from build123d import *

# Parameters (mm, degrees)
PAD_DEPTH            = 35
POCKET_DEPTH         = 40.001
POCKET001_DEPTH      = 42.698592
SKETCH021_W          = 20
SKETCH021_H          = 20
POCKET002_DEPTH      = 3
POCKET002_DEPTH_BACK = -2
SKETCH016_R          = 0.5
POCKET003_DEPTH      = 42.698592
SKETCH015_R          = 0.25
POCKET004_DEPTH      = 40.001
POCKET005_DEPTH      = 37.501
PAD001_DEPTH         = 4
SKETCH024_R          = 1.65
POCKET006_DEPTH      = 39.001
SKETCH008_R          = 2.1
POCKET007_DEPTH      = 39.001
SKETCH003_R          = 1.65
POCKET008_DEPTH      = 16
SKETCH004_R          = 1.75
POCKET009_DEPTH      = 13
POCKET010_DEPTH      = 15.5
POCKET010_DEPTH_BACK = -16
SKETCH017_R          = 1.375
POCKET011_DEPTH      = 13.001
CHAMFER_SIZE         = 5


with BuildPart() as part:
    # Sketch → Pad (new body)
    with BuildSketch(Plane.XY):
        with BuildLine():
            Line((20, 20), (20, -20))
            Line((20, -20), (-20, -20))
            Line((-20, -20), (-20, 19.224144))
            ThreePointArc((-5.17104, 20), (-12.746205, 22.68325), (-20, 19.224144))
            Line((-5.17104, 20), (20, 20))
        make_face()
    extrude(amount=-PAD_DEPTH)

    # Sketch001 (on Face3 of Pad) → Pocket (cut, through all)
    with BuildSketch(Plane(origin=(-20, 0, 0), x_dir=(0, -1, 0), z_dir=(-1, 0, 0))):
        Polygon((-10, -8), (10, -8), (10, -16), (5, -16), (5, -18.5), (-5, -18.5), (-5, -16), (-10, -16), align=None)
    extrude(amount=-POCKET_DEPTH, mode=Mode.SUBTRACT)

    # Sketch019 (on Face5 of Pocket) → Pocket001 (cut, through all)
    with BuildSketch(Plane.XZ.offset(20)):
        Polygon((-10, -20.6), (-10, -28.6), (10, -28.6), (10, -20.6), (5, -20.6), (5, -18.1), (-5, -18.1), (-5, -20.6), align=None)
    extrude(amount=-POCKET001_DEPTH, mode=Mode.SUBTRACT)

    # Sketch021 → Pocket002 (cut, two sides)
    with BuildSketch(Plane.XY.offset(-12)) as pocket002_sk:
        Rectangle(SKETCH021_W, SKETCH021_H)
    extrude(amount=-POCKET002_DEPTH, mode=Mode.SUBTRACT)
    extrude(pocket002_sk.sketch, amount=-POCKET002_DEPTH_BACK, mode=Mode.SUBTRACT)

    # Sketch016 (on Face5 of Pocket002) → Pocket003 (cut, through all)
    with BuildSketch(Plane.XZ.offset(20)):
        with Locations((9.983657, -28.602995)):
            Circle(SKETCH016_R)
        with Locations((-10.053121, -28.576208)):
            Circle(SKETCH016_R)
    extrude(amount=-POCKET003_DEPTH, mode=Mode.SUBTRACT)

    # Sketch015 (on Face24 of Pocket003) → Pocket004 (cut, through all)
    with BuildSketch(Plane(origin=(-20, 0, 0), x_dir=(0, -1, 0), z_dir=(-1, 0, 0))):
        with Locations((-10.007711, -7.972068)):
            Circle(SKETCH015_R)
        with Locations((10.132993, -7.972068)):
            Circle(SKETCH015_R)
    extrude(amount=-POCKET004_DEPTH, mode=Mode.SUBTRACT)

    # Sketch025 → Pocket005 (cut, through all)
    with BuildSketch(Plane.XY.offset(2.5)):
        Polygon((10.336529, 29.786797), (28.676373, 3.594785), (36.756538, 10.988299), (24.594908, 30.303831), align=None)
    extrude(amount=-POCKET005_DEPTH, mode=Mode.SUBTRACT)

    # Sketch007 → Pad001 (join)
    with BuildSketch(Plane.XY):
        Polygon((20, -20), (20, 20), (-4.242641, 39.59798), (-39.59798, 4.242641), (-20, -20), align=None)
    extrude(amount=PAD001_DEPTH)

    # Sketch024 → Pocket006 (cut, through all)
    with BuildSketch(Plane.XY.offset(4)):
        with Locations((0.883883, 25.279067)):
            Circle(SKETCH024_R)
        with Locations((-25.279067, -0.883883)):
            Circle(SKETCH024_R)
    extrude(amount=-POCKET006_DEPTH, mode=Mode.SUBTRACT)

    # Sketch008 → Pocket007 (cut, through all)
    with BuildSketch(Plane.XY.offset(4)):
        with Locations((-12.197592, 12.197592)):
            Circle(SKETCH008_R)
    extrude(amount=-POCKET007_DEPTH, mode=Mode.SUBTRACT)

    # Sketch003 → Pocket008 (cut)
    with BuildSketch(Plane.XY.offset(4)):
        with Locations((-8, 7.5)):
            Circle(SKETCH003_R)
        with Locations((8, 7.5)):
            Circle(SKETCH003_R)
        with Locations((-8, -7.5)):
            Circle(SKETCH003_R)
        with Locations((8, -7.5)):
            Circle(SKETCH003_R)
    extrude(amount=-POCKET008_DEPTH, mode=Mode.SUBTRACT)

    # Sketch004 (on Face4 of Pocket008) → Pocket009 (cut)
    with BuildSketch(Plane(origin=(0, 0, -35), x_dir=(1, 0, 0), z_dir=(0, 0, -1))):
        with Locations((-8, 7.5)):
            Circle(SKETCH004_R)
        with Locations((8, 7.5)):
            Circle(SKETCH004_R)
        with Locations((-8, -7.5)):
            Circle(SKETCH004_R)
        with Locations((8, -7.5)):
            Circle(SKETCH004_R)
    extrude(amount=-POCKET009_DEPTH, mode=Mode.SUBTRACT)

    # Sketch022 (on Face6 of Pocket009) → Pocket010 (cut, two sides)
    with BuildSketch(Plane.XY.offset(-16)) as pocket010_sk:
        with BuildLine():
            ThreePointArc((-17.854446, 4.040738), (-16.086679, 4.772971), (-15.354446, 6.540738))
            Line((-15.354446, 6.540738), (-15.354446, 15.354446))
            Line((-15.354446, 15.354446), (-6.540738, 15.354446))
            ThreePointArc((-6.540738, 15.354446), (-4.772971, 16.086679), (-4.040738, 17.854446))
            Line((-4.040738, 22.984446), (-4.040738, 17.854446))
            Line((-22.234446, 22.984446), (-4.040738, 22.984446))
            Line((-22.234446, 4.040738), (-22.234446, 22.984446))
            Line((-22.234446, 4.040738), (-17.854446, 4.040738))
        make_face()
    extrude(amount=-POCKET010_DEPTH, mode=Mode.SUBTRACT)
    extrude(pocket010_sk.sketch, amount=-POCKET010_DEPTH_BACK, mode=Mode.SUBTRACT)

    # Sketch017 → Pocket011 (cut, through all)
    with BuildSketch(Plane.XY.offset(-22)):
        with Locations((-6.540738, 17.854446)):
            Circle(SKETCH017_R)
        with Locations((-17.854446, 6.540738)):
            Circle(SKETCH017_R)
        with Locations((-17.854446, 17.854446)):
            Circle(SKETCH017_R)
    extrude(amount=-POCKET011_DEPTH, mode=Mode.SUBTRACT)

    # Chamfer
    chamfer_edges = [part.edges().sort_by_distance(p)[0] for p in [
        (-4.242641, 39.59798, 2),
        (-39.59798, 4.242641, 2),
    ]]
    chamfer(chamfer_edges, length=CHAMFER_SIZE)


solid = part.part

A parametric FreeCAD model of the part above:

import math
import FreeCAD as App
import Part
import Sketcher
Q = App.Units.Quantity


def edges_at(feature, points):
    """Names of the edges that pass closest to the given points."""
    edges = feature.Shape.Edges
    near = lambda p: min(range(len(edges)), key=lambda i: edges[i].distToShape(Part.Vertex(*p))[0])
    return sorted({f"Edge{near(p) + 1}" for p in points})

doc = App.newDocument("Part")
body = doc.addObject("PartDesign::Body", "Body")

# Sketch on XY plane
sketch1 = doc.addObject("Sketcher::SketchObject", "Sketch")
body.addObject(sketch1)
sketch1.AttachmentSupport = (doc.XY_Plane, [""])
sketch1.MapMode = "FlatFace"
sketch1.addGeometry([
    Part.LineSegment(App.Vector(20, -20, 0), App.Vector(20, 20, 0)),  # 0
    Part.LineSegment(App.Vector(20, 20, 0), App.Vector(-5, 20, 0)),  # 1
    Part.ArcOfCircle(Part.Circle(App.Vector(-12, 12, 0), App.Vector(0, 0, 1), 11), math.radians(48), math.radians(138)),  # 2
    Part.LineSegment(App.Vector(-20, 19, 0), App.Vector(-20, -20, 0)),  # 3
    Part.LineSegment(App.Vector(-20, -20, 0), App.Vector(20, -20, 0)),  # 4
], False)
sketch1.addConstraint([
    Sketcher.Constraint("Coincident", 0, 2, 1, 1),
    Sketcher.Constraint("Coincident", 1, 2, 2, 1),
    Sketcher.Constraint("Coincident", 2, 2, 3, 1),
    Sketcher.Constraint("Coincident", 3, 2, 4, 1),
    Sketcher.Constraint("Coincident", 4, 2, 0, 1),
    Sketcher.Constraint("Vertical", 0),
    Sketcher.Constraint("Horizontal", 1),
    Sketcher.Constraint("Vertical", 3),
    Sketcher.Constraint("Horizontal", 4),
    Sketcher.Constraint("Symmetric", 0, 2, 3, 2, -1, 1),
    Sketcher.Constraint("Equal", 4, 0),
    Sketcher.Constraint("Radius", 2, Q("10.500001 mm")),
    Sketcher.Constraint("DistanceX", 4, 1, 4, 2, Q("40 mm")),
    Sketcher.Constraint("DistanceX", 1, 2, 1, 1, Q("25.17104 mm")),
    Sketcher.Constraint("DistanceY", 3, 2, 3, 1, Q("39.224144 mm")),
])
pad1 = doc.addObject("PartDesign::Pad", "Pad")
body.addObject(pad1)
pad1.Profile = sketch1
pad1.Length = 35
pad1.Reversed = True

# Sketch on YZ plane
sketch2 = doc.addObject("Sketcher::SketchObject", "Sketch001")
body.addObject(sketch2)
sketch2.AttachmentSupport = (doc.YZ_Plane, [""])
sketch2.MapMode = "FlatFace"
sketch2.AttachmentOffset = App.Placement(App.Vector(0, 0, -20), App.Rotation())
sketch2.addGeometry([
    Part.LineSegment(App.Vector(-10, -8, 0), App.Vector(10, -8, 0)),  # 0
    Part.LineSegment(App.Vector(10, -8, 0), App.Vector(10, -16, 0)),  # 1
    Part.LineSegment(App.Vector(10, -16, 0), App.Vector(5, -16, 0)),  # 2
    Part.LineSegment(App.Vector(5, -16, 0), App.Vector(5, -18.5, 0)),  # 3
    Part.LineSegment(App.Vector(5, -18.5, 0), App.Vector(-5, -18.5, 0)),  # 4
    Part.LineSegment(App.Vector(-5, -18.5, 0), App.Vector(-5, -16, 0)),  # 5
    Part.LineSegment(App.Vector(-5, -16, 0), App.Vector(-10, -16, 0)),  # 6
    Part.LineSegment(App.Vector(-10, -16, 0), App.Vector(-10, -8, 0)),  # 7
], False)
sketch2.addConstraint([
    Sketcher.Constraint("Coincident", 0, 2, 1, 1),
    Sketcher.Constraint("Coincident", 1, 2, 2, 1),
    Sketcher.Constraint("Coincident", 2, 2, 3, 1),
    Sketcher.Constraint("Coincident", 3, 2, 4, 1),
    Sketcher.Constraint("Coincident", 4, 2, 5, 1),
    Sketcher.Constraint("Coincident", 5, 2, 6, 1),
    Sketcher.Constraint("Coincident", 6, 2, 7, 1),
    Sketcher.Constraint("Coincident", 7, 2, 0, 1),
    Sketcher.Constraint("Horizontal", 0),
    Sketcher.Constraint("Vertical", 1),
    Sketcher.Constraint("Horizontal", 2),
    Sketcher.Constraint("Vertical", 3),
    Sketcher.Constraint("Horizontal", 4),
    Sketcher.Constraint("Vertical", 5),
    Sketcher.Constraint("Horizontal", 6),
    Sketcher.Constraint("Vertical", 7),
    Sketcher.Constraint("Symmetric", 2, 2, 5, 2, -2),
    Sketcher.Constraint("Equal", 2, 6),
    Sketcher.Constraint("DistanceX", 0, 1, 0, 2, Q("20 mm")),
    Sketcher.Constraint("DistanceX", 2, 2, 2, 1, Q("5 mm")),
    Sketcher.Constraint("DistanceY", 1, 2, 1, 1, Q("8 mm")),
    Sketcher.Constraint("DistanceY", 3, 2, 3, 1, Q("2.5 mm")),
    Sketcher.Constraint("DistanceY", 0, 2, -1, 1, Q("8 mm")),
])
pocket1 = doc.addObject("PartDesign::Pocket", "Pocket")
body.addObject(pocket1)
pocket1.Profile = sketch2
pocket1.Type = "ThroughAll"
pocket1.Reversed = True

# Sketch on XZ plane
sketch3 = doc.addObject("Sketcher::SketchObject", "Sketch002")
body.addObject(sketch3)
sketch3.AttachmentSupport = (doc.XZ_Plane, [""])
sketch3.MapMode = "FlatFace"
sketch3.AttachmentOffset = App.Placement(App.Vector(0, 0, 20), App.Rotation())
sketch3.addGeometry([
    Part.LineSegment(App.Vector(-10, -20.6, 0), App.Vector(-10, -28.6, 0)),  # 0
    Part.LineSegment(App.Vector(-10, -28.6, 0), App.Vector(10, -28.6, 0)),  # 1
    Part.LineSegment(App.Vector(10, -28.6, 0), App.Vector(10, -20.6, 0)),  # 2
    Part.LineSegment(App.Vector(10, -20.6, 0), App.Vector(5, -20.6, 0)),  # 3
    Part.LineSegment(App.Vector(5, -20.6, 0), App.Vector(5, -18.1, 0)),  # 4
    Part.LineSegment(App.Vector(5, -18.1, 0), App.Vector(-5, -18.1, 0)),  # 5
    Part.LineSegment(App.Vector(-5, -18.1, 0), App.Vector(-5, -20.6, 0)),  # 6
    Part.LineSegment(App.Vector(-5, -20.6, 0), App.Vector(-10, -20.6, 0)),  # 7
], False)
sketch3.addConstraint([
    Sketcher.Constraint("Coincident", 0, 2, 1, 1),
    Sketcher.Constraint("Coincident", 1, 2, 2, 1),
    Sketcher.Constraint("Coincident", 2, 2, 3, 1),
    Sketcher.Constraint("Coincident", 3, 2, 4, 1),
    Sketcher.Constraint("Coincident", 4, 2, 5, 1),
    Sketcher.Constraint("Coincident", 5, 2, 6, 1),
    Sketcher.Constraint("Coincident", 6, 2, 7, 1),
    Sketcher.Constraint("Coincident", 7, 2, 0, 1),
    Sketcher.Constraint("Vertical", 0),
    Sketcher.Constraint("Horizontal", 1),
    Sketcher.Constraint("Vertical", 2),
    Sketcher.Constraint("Horizontal", 3),
    Sketcher.Constraint("Vertical", 4),
    Sketcher.Constraint("Horizontal", 5),
    Sketcher.Constraint("Vertical", 6),
    Sketcher.Constraint("Horizontal", 7),
    Sketcher.Constraint("Symmetric", 3, 2, 6, 2, -2),
    Sketcher.Constraint("Equal", 3, 7),
    Sketcher.Constraint("DistanceX", 1, 1, 1, 2, Q("20 mm")),
    Sketcher.Constraint("DistanceX", 3, 2, 3, 1, Q("5 mm")),
    Sketcher.Constraint("DistanceY", 0, 2, 0, 1, Q("8 mm")),
    Sketcher.Constraint("DistanceY", 4, 1, 4, 2, Q("2.5 mm")),
    Sketcher.Constraint("DistanceY", 0, 2, -1, 1, Q("28.6 mm")),
])
pocket2 = doc.addObject("PartDesign::Pocket", "Pocket001")
body.addObject(pocket2)
pocket2.Profile = sketch3
pocket2.Type = "ThroughAll"

# Sketch on XY plane
sketch4 = doc.addObject("Sketcher::SketchObject", "Sketch003")
body.addObject(sketch4)
sketch4.AttachmentSupport = (doc.XY_Plane, [""])
sketch4.MapMode = "FlatFace"
sketch4.AttachmentOffset = App.Placement(App.Vector(0, 0, -12), App.Rotation())
sketch4.addGeometry([
    Part.LineSegment(App.Vector(-10, 10, 0), App.Vector(-10, -10, 0)),
    Part.LineSegment(App.Vector(-10, -10, 0), App.Vector(10, -10, 0)),
    Part.LineSegment(App.Vector(10, -10, 0), App.Vector(10, 10, 0)),
    Part.LineSegment(App.Vector(10, 10, 0), App.Vector(-10, 10, 0)),
], False)
sketch4.addConstraint([
    Sketcher.Constraint("Coincident", 0, 2, 1, 1),
    Sketcher.Constraint("Coincident", 1, 2, 2, 1),
    Sketcher.Constraint("Coincident", 2, 2, 3, 1),
    Sketcher.Constraint("Coincident", 3, 2, 0, 1),
    Sketcher.Constraint("Vertical", 0),
    Sketcher.Constraint("Horizontal", 1),
    Sketcher.Constraint("Vertical", 2),
    Sketcher.Constraint("Horizontal", 3),
    Sketcher.Constraint("Symmetric", 0, 2, 2, 2, -1, 1),
    Sketcher.Constraint("Equal", 3, 0),
    Sketcher.Constraint("DistanceX", 1, 1, 1, 2, Q("20 mm")),
])
pocket3 = doc.addObject("PartDesign::Pocket", "Pocket002")
body.addObject(pocket3)
pocket3.Profile = sketch4
pocket3.Type = "TwoLengths"
pocket3.Length = 3
pocket3.Length2 = 2

# Sketch on XZ plane
sketch5 = doc.addObject("Sketcher::SketchObject", "Sketch004")
body.addObject(sketch5)
sketch5.AttachmentSupport = (doc.XZ_Plane, [""])
sketch5.MapMode = "FlatFace"
sketch5.AttachmentOffset = App.Placement(App.Vector(0, 0, 20), App.Rotation())
sketch5.addGeometry([
    Part.Circle(App.Vector(10, -28.6, 0), App.Vector(0, 0, 1), 0.5),
    Part.Circle(App.Vector(-10.1, -28.6, 0), App.Vector(0, 0, 1), 0.5),
], False)
sketch5.addConstraint([
    Sketcher.Constraint("Equal", 0, 1),
    Sketcher.Constraint("Diameter", 0, Q("1 mm")),
    Sketcher.Constraint("DistanceX", 1, 3, -1, 1, Q("10.053121 mm")),
    Sketcher.Constraint("DistanceY", 1, 3, -1, 1, Q("28.576208 mm")),
    Sketcher.Constraint("DistanceX", -1, 1, 0, 3, Q("9.983657 mm")),
    Sketcher.Constraint("DistanceY", 0, 3, -1, 1, Q("28.602995 mm")),
])
pocket4 = doc.addObject("PartDesign::Pocket", "Pocket003")
body.addObject(pocket4)
pocket4.Profile = sketch5
pocket4.Type = "ThroughAll"

# Sketch on YZ plane
sketch6 = doc.addObject("Sketcher::SketchObject", "Sketch005")
body.addObject(sketch6)
sketch6.AttachmentSupport = (doc.YZ_Plane, [""])
sketch6.MapMode = "FlatFace"
sketch6.AttachmentOffset = App.Placement(App.Vector(0, 0, -20), App.Rotation())
sketch6.addGeometry([
    Part.Circle(App.Vector(10.01, -7.97, 0), App.Vector(0, 0, 1), 0.25),
    Part.Circle(App.Vector(-10.13, -7.97, 0), App.Vector(0, 0, 1), 0.25),
], False)
sketch6.addConstraint([
    Sketcher.Constraint("Equal", 0, 1),
    Sketcher.Constraint("Horizontal", 0, 3, 1, 3),
    Sketcher.Constraint("Diameter", 0, Q("0.5 mm")),
    Sketcher.Constraint("DistanceX", -1, 1, 0, 3, Q("10.007711 mm")),
    Sketcher.Constraint("DistanceY", 0, 3, -1, 1, Q("7.972068 mm")),
    Sketcher.Constraint("DistanceX", 1, 3, -1, 1, Q("10.132993 mm")),
])
pocket5 = doc.addObject("PartDesign::Pocket", "Pocket004")
body.addObject(pocket5)
pocket5.Profile = sketch6
pocket5.Type = "ThroughAll"
pocket5.Reversed = True

# Sketch on XY plane
sketch7 = doc.addObject("Sketcher::SketchObject", "Sketch006")
body.addObject(sketch7)
sketch7.AttachmentSupport = (doc.XY_Plane, [""])
sketch7.MapMode = "FlatFace"
sketch7.AttachmentOffset = App.Placement(App.Vector(0, 0, 2.5), App.Rotation())
sketch7.addGeometry([
    Part.LineSegment(App.Vector(10, 30, 0), App.Vector(29, 4, 0)),
    Part.LineSegment(App.Vector(29, 4, 0), App.Vector(37, 11, 0)),
    Part.LineSegment(App.Vector(37, 11, 0), App.Vector(25, 30, 0)),
    Part.LineSegment(App.Vector(25, 30, 0), App.Vector(10, 30, 0)),
], False)
sketch7.addConstraint([
    Sketcher.Constraint("Coincident", 0, 2, 1, 1),
    Sketcher.Constraint("Coincident", 1, 2, 2, 1),
    Sketcher.Constraint("Coincident", 2, 2, 3, 1),
    Sketcher.Constraint("Coincident", 3, 2, 0, 1),
    Sketcher.Constraint("Angle", 0, Q("-55 deg")),
    Sketcher.Constraint("DistanceY", -1, 1, 1, 2, Q("10.988299 mm")),
    Sketcher.Constraint("DistanceY", 1, 2, 3, 2, Q("18.798498 mm")),
    Sketcher.Constraint("Distance", 1, Q("10.952311 mm")),
    Sketcher.Constraint("Distance", 3, Q("14.26775 mm")),
    Sketcher.Constraint("DistanceX", -1, 1, 2, 2, Q("24.594908 mm")),
    Sketcher.Constraint("DistanceY", -1, 1, 2, 2, Q("30.303831 mm")),
    Sketcher.Constraint("DistanceX", 2, 2, 1, 2, Q("12.16163 mm")),
])
pocket6 = doc.addObject("PartDesign::Pocket", "Pocket005")
body.addObject(pocket6)
pocket6.Profile = sketch7
pocket6.Type = "ThroughAll"

# Sketch on XY plane
sketch8 = doc.addObject("Sketcher::SketchObject", "Sketch007")
body.addObject(sketch8)
sketch8.AttachmentSupport = (doc.XY_Plane, [""])
sketch8.MapMode = "FlatFace"
sketch8.addGeometry([
    Part.LineSegment(App.Vector(20, -20, 0), App.Vector(20, 20, 0)),  # 0
    Part.LineSegment(App.Vector(20, 20, 0), App.Vector(-4, 40, 0)),  # 1
    Part.LineSegment(App.Vector(-4, 40, 0), App.Vector(-40, 4, 0)),  # 2
    Part.LineSegment(App.Vector(-40, 4, 0), App.Vector(-20, -20, 0)),  # 3
    Part.LineSegment(App.Vector(-20, -20, 0), App.Vector(20, -20, 0)),  # 4
], False)
sketch8.addConstraint([
    Sketcher.Constraint("Coincident", 0, 2, 1, 1),
    Sketcher.Constraint("Coincident", 1, 2, 2, 1),
    Sketcher.Constraint("Coincident", 2, 2, 3, 1),
    Sketcher.Constraint("Coincident", 3, 2, 4, 1),
    Sketcher.Constraint("Coincident", 4, 2, 0, 1),
    Sketcher.Constraint("Vertical", 0),
    Sketcher.Constraint("Horizontal", 4),
    Sketcher.Constraint("Symmetric", 0, 2, 3, 2, -1, 1),
    Sketcher.Constraint("Equal", 4, 0),
    Sketcher.Constraint("Equal", 1, 3),
    Sketcher.Constraint("DistanceX", 4, 1, 4, 2, Q("40 mm")),
    Sketcher.Constraint("Angle", 2, Q("-135 deg")),
    Sketcher.Constraint("Distance", 2, Q("50 mm")),
    Sketcher.Constraint("Distance", 1, Q("31.17349 mm")),
])
pad2 = doc.addObject("PartDesign::Pad", "Pad001")
body.addObject(pad2)
pad2.Profile = sketch8
pad2.Length = 4

# Sketch on XY plane
sketch9 = doc.addObject("Sketcher::SketchObject", "Sketch008")
body.addObject(sketch9)
sketch9.AttachmentSupport = (doc.XY_Plane, [""])
sketch9.MapMode = "FlatFace"
sketch9.AttachmentOffset = App.Placement(App.Vector(0, 0, 4), App.Rotation())
sketch9.addGeometry([
    Part.Circle(App.Vector(0.9, 25.3, 0), App.Vector(0, 0, 1), 1.6),
    Part.Circle(App.Vector(-25.3, -0.9, 0), App.Vector(0, 0, 1), 1.6),
], False)
sketch9.addConstraint([
    Sketcher.Constraint("Equal", 0, 1),
    Sketcher.Constraint("Diameter", 0, Q("3.3 mm")),
    Sketcher.Constraint("DistanceX", 1, 3, 0, 3, Q("26.16295 mm")),
    Sketcher.Constraint("DistanceY", 1, 3, 0, 3, Q("26.16295 mm")),
    Sketcher.Constraint("DistanceX", -1, 1, 0, 3, Q("0.883883 mm")),
    Sketcher.Constraint("DistanceY", -1, 1, 0, 3, Q("25.279067 mm")),
])
pocket7 = doc.addObject("PartDesign::Pocket", "Pocket006")
body.addObject(pocket7)
pocket7.Profile = sketch9
pocket7.Type = "ThroughAll"

# Sketch on XY plane
sketch10 = doc.addObject("Sketcher::SketchObject", "Sketch009")
body.addObject(sketch10)
sketch10.AttachmentSupport = (doc.XY_Plane, [""])
sketch10.MapMode = "FlatFace"
sketch10.AttachmentOffset = App.Placement(App.Vector(0, 0, 4), App.Rotation())
sketch10.addGeometry(Part.Circle(App.Vector(-12.2, 12.2, 0), App.Vector(0, 0, 1), 2.1), False)
sketch10.addConstraint([
    Sketcher.Constraint("Diameter", 0, Q("4.2 mm")),
    Sketcher.Constraint("DistanceX", 0, 3, -1, 1, Q("12.197592 mm")),
    Sketcher.Constraint("DistanceY", -1, 1, 0, 3, Q("12.197592 mm")),
])
pocket8 = doc.addObject("PartDesign::Pocket", "Pocket007")
body.addObject(pocket8)
pocket8.Profile = sketch10
pocket8.Type = "ThroughAll"

# Sketch on XY plane
sketch11 = doc.addObject("Sketcher::SketchObject", "Sketch010")
body.addObject(sketch11)
sketch11.AttachmentSupport = (doc.XY_Plane, [""])
sketch11.MapMode = "FlatFace"
sketch11.AttachmentOffset = App.Placement(App.Vector(0, 0, 4), App.Rotation())
sketch11.addGeometry([
    Part.Circle(App.Vector(-8, 7.5, 0), App.Vector(0, 0, 1), 1.6),
    Part.Circle(App.Vector(8, 7.5, 0), App.Vector(0, 0, 1), 1.6),
    Part.Circle(App.Vector(-8, -7.5, 0), App.Vector(0, 0, 1), 1.6),
    Part.Circle(App.Vector(8, -7.5, 0), App.Vector(0, 0, 1), 1.6),
], False)
sketch11.addConstraint([
    Sketcher.Constraint("Equal", 0, 1),
    Sketcher.Constraint("Equal", 1, 2),
    Sketcher.Constraint("Equal", 2, 3),
    Sketcher.Constraint("Symmetric", 1, 3, 2, 3, -1, 1),
    Sketcher.Constraint("Symmetric", 0, 3, 3, 3, -1, 1),
    Sketcher.Constraint("Symmetric", 0, 3, 1, 3, -2),
    Sketcher.Constraint("Diameter", 0, Q("3.3 mm")),
    Sketcher.Constraint("DistanceX", 0, 3, -1, 1, Q("8 mm")),
    Sketcher.Constraint("DistanceY", 2, 3, 0, 3, Q("15 mm")),
])
pocket9 = doc.addObject("PartDesign::Pocket", "Pocket008")
body.addObject(pocket9)
pocket9.Profile = sketch11
pocket9.Length = 16

# Sketch on XY plane
sketch12 = doc.addObject("Sketcher::SketchObject", "Sketch011")
body.addObject(sketch12)
sketch12.AttachmentSupport = (doc.XY_Plane, [""])
sketch12.MapMode = "FlatFace"
sketch12.AttachmentOffset = App.Placement(App.Vector(0, 0, -35), App.Rotation())
sketch12.addGeometry([
    Part.Circle(App.Vector(-8, -7.5, 0), App.Vector(0, 0, 1), 1.8),
    Part.Circle(App.Vector(8, -7.5, 0), App.Vector(0, 0, 1), 1.8),
    Part.Circle(App.Vector(-8, 7.5, 0), App.Vector(0, 0, 1), 1.8),
    Part.Circle(App.Vector(8, 7.5, 0), App.Vector(0, 0, 1), 1.8),
], False)
sketch12.addConstraint([
    Sketcher.Constraint("Equal", 0, 1),
    Sketcher.Constraint("Equal", 1, 2),
    Sketcher.Constraint("Equal", 2, 3),
    Sketcher.Constraint("Symmetric", 1, 3, 2, 3, -1, 1),
    Sketcher.Constraint("Symmetric", 0, 3, 3, 3, -1, 1),
    Sketcher.Constraint("Symmetric", 0, 3, 1, 3, -2),
    Sketcher.Constraint("Diameter", 0, Q("3.5 mm")),
    Sketcher.Constraint("DistanceX", 0, 3, -1, 1, Q("8 mm")),
    Sketcher.Constraint("DistanceY", 0, 3, 2, 3, Q("15 mm")),
])
pocket10 = doc.addObject("PartDesign::Pocket", "Pocket009")
body.addObject(pocket10)
pocket10.Profile = sketch12
pocket10.Length = 13
pocket10.Reversed = True

# Sketch on XY plane
sketch13 = doc.addObject("Sketcher::SketchObject", "Sketch012")
body.addObject(sketch13)
sketch13.AttachmentSupport = (doc.XY_Plane, [""])
sketch13.MapMode = "FlatFace"
sketch13.AttachmentOffset = App.Placement(App.Vector(0, 0, -16), App.Rotation())
sketch13.addGeometry([
    Part.ArcOfCircle(Part.Circle(App.Vector(-17.9, 6.5, 0), App.Vector(0, 0, 1), 2.5), math.radians(-90), math.radians(0)),  # 0
    Part.LineSegment(App.Vector(-15.4, 6.5, 0), App.Vector(-15.4, 15.4, 0)),  # 1
    Part.LineSegment(App.Vector(-15.4, 15.4, 0), App.Vector(-6.5, 15.4, 0)),  # 2
    Part.ArcOfCircle(Part.Circle(App.Vector(-6.5, 17.9, 0), App.Vector(0, 0, 1), 2.5), math.radians(-90), math.radians(0)),  # 3
    Part.LineSegment(App.Vector(-4, 17.9, 0), App.Vector(-4, 23, 0)),  # 4
    Part.LineSegment(App.Vector(-4, 23, 0), App.Vector(-22.2, 23, 0)),  # 5
    Part.LineSegment(App.Vector(-22.2, 23, 0), App.Vector(-22.2, 4, 0)),  # 6
    Part.LineSegment(App.Vector(-22.2, 4, 0), App.Vector(-17.9, 4, 0)),  # 7
], False)
sketch13.addConstraint([
    Sketcher.Constraint("Tangent", 0, 2, 1, 1),
    Sketcher.Constraint("Coincident", 1, 2, 2, 1),
    Sketcher.Constraint("Tangent", 2, 2, 3, 1),
    Sketcher.Constraint("Tangent", 3, 2, 4, 1),
    Sketcher.Constraint("Coincident", 4, 2, 5, 1),
    Sketcher.Constraint("Coincident", 5, 2, 6, 1),
    Sketcher.Constraint("Coincident", 6, 2, 7, 1),
    Sketcher.Constraint("Tangent", 7, 2, 0, 1),
    Sketcher.Constraint("Vertical", 1),
    Sketcher.Constraint("Horizontal", 2),
    Sketcher.Constraint("Vertical", 4),
    Sketcher.Constraint("Horizontal", 5),
    Sketcher.Constraint("Vertical", 6),
    Sketcher.Constraint("Horizontal", 7),
    Sketcher.Constraint("Equal", 0, 3),
    Sketcher.Constraint("Equal", 2, 1),
    Sketcher.Constraint("Radius", 0, Q("2.5 mm")),
    Sketcher.Constraint("DistanceX", 7, 1, 7, 2, Q("4.38 mm")),
    Sketcher.Constraint("DistanceY", 4, 1, 4, 2, Q("5.13 mm")),
    Sketcher.Constraint("DistanceX", 2, 1, 2, 2, Q("8.813708 mm")),
    Sketcher.Constraint("DistanceX", 3, 2, -1, 1, Q("4.040738 mm")),
    Sketcher.Constraint("DistanceY", -1, 1, 0, 3, Q("6.540738 mm")),
])
pocket11 = doc.addObject("PartDesign::Pocket", "Pocket010")
body.addObject(pocket11)
pocket11.Profile = sketch13
pocket11.Type = "TwoLengths"
pocket11.Length = 15.5
pocket11.Length2 = 16

# Sketch on XY plane
sketch14 = doc.addObject("Sketcher::SketchObject", "Sketch013")
body.addObject(sketch14)
sketch14.AttachmentSupport = (doc.XY_Plane, [""])
sketch14.MapMode = "FlatFace"
sketch14.AttachmentOffset = App.Placement(App.Vector(0, 0, -22), App.Rotation())
sketch14.addGeometry([
    Part.Circle(App.Vector(-6.5, 17.9, 0), App.Vector(0, 0, 1), 1.4),
    Part.Circle(App.Vector(-17.9, 6.5, 0), App.Vector(0, 0, 1), 1.4),
    Part.Circle(App.Vector(-17.9, 17.9, 0), App.Vector(0, 0, 1), 1.4),
], False)
sketch14.addConstraint([
    Sketcher.Constraint("Equal", 0, 1),
    Sketcher.Constraint("Equal", 1, 2),
    Sketcher.Constraint("Horizontal", 0, 3, 2, 3),
    Sketcher.Constraint("Vertical", 1, 3, 2, 3),
    Sketcher.Constraint("Diameter", 0, Q("2.75 mm")),
    Sketcher.Constraint("DistanceX", 0, 3, -1, 1, Q("6.540738 mm")),
    Sketcher.Constraint("DistanceY", -1, 1, 0, 3, Q("17.854446 mm")),
    Sketcher.Constraint("DistanceX", 1, 3, -1, 1, Q("17.854446 mm")),
    Sketcher.Constraint("DistanceY", -1, 1, 1, 3, Q("6.540738 mm")),
])
pocket12 = doc.addObject("PartDesign::Pocket", "Pocket011")
body.addObject(pocket12)
pocket12.Profile = sketch14
pocket12.Type = "ThroughAll"
doc.recompute()

chamfer = doc.addObject("PartDesign::Chamfer", "Chamfer")
body.addObject(chamfer)
chamfer.Base = (pocket12, edges_at(pocket12, [(-4.243, 39.598, 2), (-39.598, 4.243, 2)]))
chamfer.Size = 5

doc.recompute()
